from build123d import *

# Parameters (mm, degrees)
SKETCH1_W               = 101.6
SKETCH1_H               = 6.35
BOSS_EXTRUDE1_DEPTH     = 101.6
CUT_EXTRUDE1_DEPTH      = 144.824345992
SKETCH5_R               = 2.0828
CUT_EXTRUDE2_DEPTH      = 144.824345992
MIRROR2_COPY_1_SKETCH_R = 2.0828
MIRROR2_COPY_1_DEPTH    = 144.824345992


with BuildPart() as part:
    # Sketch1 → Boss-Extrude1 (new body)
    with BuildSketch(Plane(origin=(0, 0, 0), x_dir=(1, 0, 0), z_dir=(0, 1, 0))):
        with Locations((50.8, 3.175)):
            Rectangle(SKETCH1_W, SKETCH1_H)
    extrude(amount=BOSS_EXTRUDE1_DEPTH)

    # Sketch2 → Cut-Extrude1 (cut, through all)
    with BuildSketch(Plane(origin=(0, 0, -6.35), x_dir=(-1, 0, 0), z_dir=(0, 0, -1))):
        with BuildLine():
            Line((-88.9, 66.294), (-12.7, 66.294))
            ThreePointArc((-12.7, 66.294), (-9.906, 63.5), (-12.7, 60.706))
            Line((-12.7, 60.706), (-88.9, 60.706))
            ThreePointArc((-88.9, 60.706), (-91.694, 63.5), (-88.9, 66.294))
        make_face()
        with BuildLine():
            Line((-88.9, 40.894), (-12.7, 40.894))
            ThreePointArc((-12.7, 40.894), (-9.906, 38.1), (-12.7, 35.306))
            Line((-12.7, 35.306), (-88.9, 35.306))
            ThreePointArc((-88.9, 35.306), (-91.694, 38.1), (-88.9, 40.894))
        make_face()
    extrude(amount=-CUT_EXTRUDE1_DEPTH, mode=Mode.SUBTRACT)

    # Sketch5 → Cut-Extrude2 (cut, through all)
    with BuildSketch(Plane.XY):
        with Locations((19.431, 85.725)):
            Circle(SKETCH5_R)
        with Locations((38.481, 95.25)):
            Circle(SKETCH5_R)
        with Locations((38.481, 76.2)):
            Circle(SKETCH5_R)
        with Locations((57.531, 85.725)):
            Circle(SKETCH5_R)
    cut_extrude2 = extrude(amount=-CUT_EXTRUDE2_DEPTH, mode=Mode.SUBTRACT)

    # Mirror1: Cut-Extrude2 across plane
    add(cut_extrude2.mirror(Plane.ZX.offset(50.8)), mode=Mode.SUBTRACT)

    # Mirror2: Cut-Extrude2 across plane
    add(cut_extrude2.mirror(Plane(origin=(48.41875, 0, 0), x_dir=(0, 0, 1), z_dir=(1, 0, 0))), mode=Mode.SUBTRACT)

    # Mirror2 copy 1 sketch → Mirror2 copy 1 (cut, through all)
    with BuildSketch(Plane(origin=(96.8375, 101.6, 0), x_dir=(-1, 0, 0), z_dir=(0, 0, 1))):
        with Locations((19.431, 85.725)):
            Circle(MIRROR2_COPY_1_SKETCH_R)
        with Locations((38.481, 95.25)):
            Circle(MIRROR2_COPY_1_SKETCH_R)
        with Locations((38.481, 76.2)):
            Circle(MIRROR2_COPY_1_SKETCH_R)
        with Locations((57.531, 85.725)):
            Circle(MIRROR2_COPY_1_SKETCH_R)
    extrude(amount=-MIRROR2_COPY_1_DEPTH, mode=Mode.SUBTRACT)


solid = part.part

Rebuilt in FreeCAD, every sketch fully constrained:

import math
import FreeCAD as App
import Part
import Sketcher
Q = App.Units.Quantity

doc = App.newDocument("Part")
body = doc.addObject("PartDesign::Body", "Body")

sketch1 = body.newObject("Sketcher::SketchObject", "Sketch")
sketch1.AttachmentSupport = (doc.getObject("XZ_Plane"), [""])
sketch1.MapMode = "FlatFace"
sketch1.addGeometry([
    Part.LineSegment(App.Vector(0, -6.35, 0), App.Vector(0, 0, 0)),
    Part.LineSegment(App.Vector(0, 0, 0), App.Vector(101.6, 0, 0)),
    Part.LineSegment(App.Vector(101.6, 0, 0), App.Vector(101.6, -6.35, 0)),
    Part.LineSegment(App.Vector(101.6, -6.35, 0), App.Vector(0, -6.35, 0)),
], False)
sketch1.addConstraint([
    Sketcher.Constraint("Coincident", 0, 2, 1, 1),
    Sketcher.Constraint("Coincident", 1, 2, 2, 1),
    Sketcher.Constraint("Coincident", 2, 2, 3, 1),
    Sketcher.Constraint("Coincident", 3, 2, 0, 1),
    Sketcher.Constraint("Vertical", 0),
    Sketcher.Constraint("Horizontal", 1),
    Sketcher.Constraint("Vertical", 2),
    Sketcher.Constraint("Horizontal", 3),
    Sketcher.Constraint("Coincident", 0, 2, -1, 1),
    Sketcher.Constraint("DistanceX", 1, 1, 1, 2, Q("4 in")),
    Sketcher.Constraint("DistanceY", 0, 1, 0, 2, Q("0.25 in")),
])
pad1 = body.newObject("PartDesign::Pad", "Pad")
pad1.Profile = sketch1
pad1.Length = Q("4 in")
pad1.Reversed = True

sketch2 = body.newObject("Sketcher::SketchObject", "Sketch001")
sketch2.AttachmentSupport = (doc.getObject("XY_Plane"), [""])
sketch2.MapMode = "FlatFace"
sketch2.AttachmentOffset = App.Placement(App.Vector(0, 0, -0.25 * 25.4), App.Rotation())
sketch2.addGeometry([
    Part.LineSegment(App.Vector(12.7, 66.294, 0), App.Vector(88.9, 66.294, 0)),
    Part.ArcOfCircle(Part.Circle(App.Vector(88.9, 63.5, 0), App.Vector(0, 0, 1), 2.794), math.radians(-90), math.radians(90)),
    Part.LineSegment(App.Vector(88.9, 60.706, 0), App.Vector(12.7, 60.706, 0)),
    Part.ArcOfCircle(Part.Circle(App.Vector(12.7, 63.5, 0), App.Vector(0, 0, 1), 2.794), math.radians(90), math.radians(270)),
    Part.LineSegment(App.Vector(12.7, 40.894, 0), App.Vector(88.9, 40.894, 0)),
    Part.ArcOfCircle(Part.Circle(App.Vector(88.9, 38.1, 0), App.Vector(0, 0, 1), 2.794), math.radians(-90), math.radians(90)),
    Part.LineSegment(App.Vector(88.9, 35.306, 0), App.Vector(12.7, 35.306, 0)),
    Part.ArcOfCircle(Part.Circle(App.Vector(12.7, 38.1, 0), App.Vector(0, 0, 1), 2.794), math.radians(90), math.radians(270)),
], False)
sketch2.addConstraint([
    Sketcher.Constraint("Tangent", 0, 2, 1, 2),
    Sketcher.Constraint("Tangent", 1, 1, 2, 1),
    Sketcher.Constraint("Tangent", 2, 2, 3, 2),
    Sketcher.Constraint("Tangent", 3, 1, 0, 1),
    Sketcher.Constraint("Tangent", 4, 2, 5, 2),
    Sketcher.Constraint("Tangent", 5, 1, 6, 1),
    Sketcher.Constraint("Tangent", 6, 2, 7, 2),
    Sketcher.Constraint("Tangent", 7, 1, 4, 1),
    Sketcher.Constraint("Horizontal", 0),
    Sketcher.Constraint("Horizontal", 2),
    Sketcher.Constraint("Horizontal", 4),
    Sketcher.Constraint("Horizontal", 6),
    Sketcher.Constraint("Equal", 3, 5),
    Sketcher.Constraint("Vertical", 1, 3, 5, 3),
    Sketcher.Constraint("Vertical", 3, 3, 7, 3),
    Sketcher.Constraint("DistanceX", 0, 1, 0, 2, Q("3 in")),
    Sketcher.Constraint("Radius", 1, Q("0.11 in")),
    Sketcher.Constraint("DistanceY", 5, 3, 1, 3, Q("1 in")),
    Sketcher.Constraint("DistanceX", -1, 1, 1, 3, Q("3.5 in")),
    Sketcher.Constraint("DistanceY", -1, 1, 1, 3, Q("2.5 in")),
])
pocket1 = body.newObject("PartDesign::Pocket", "Pocket")
pocket1.Profile = sketch2
pocket1.Type = "ThroughAll"
pocket1.Reversed = True

sketch3 = body.newObject("Sketcher::SketchObject", "Sketch002")
sketch3.AttachmentSupport = (doc.getObject("XY_Plane"), [""])
sketch3.MapMode = "FlatFace"
sketch3.addGeometry([
    Part.Circle(App.Vector(19.431, 85.725, 0), App.Vector(0, 0, 1), 2.0828),
    Part.Circle(App.Vector(38.481, 95.25, 0), App.Vector(0, 0, 1), 2.0828),
    Part.Circle(App.Vector(38.481, 76.2, 0), App.Vector(0, 0, 1), 2.0828),
    Part.Circle(App.Vector(57.531, 85.725, 0), App.Vector(0, 0, 1), 2.0828),
], False)
sketch3.addConstraint([
    Sketcher.Constraint("Equal", 0, 1),
    Sketcher.Constraint("Equal", 1, 2),
    Sketcher.Constraint("Equal", 2, 3),
    Sketcher.Constraint("Horizontal", 0, 3, 3, 3),
    Sketcher.Constraint("Vertical", 1, 3, 2, 3),
    Sketcher.Constraint("Diameter", 0, Q("0.164 in")),
    Sketcher.Constraint("DistanceY", -1, 1, 2, 3, Q("3 in")),
    Sketcher.Constraint("DistanceX", 0, 3, 3, 3, Q("1.5 in")),
    Sketcher.Constraint("DistanceY", -1, 1, 1, 3, Q("3.75 in")),
    Sketcher.Constraint("DistanceX", 0, 3, 1, 3, Q("0.75 in")),
    Sketcher.Constraint("DistanceX", -1, 1, 0, 3, Q("0.765 in")),
    Sketcher.Constraint("DistanceY", -1, 1, 0, 3, Q("3.375 in")),
])
pocket2 = body.newObject("PartDesign::Pocket", "Pocket001")
pocket2.Profile = sketch3
pocket2.Type = "ThroughAll"
doc.recompute()

datumplane = body.newObject("PartDesign::Plane", "DatumPlane")
datumplane.AttachmentSupport = (doc.getObject("XZ_Plane"), [""])
datumplane.MapMode = "FlatFace"
datumplane.AttachmentOffset = App.Placement(App.Vector(0, 0, -2 * 25.4), App.Rotation())
mirrored = body.newObject("PartDesign::Mirrored", "Mirrored")
mirrored.Originals = [pocket2]
mirrored.MirrorPlane = (datumplane, [""])
body.Tip = mirrored
doc.recompute()

datumplane2 = body.newObject("PartDesign::Plane", "DatumPlane001")
datumplane2.AttachmentSupport = (doc.getObject("YZ_Plane"), [""])
datumplane2.MapMode = "FlatFace"
datumplane2.AttachmentOffset = App.Placement(App.Vector(0, 0, 1.90625 * 25.4), App.Rotation())
mirrored2 = body.newObject("PartDesign::Mirrored", "Mirrored001")
mirrored2.Originals = [pocket2]
mirrored2.MirrorPlane = (datumplane2, [""])
body.Tip = mirrored2

sketch4 = body.newObject("Sketcher::SketchObject", "Sketch003")
sketch4.AttachmentSupport = (doc.getObject("XY_Plane"), [""])
sketch4.MapMode = "FlatFace"
sketch4.addGeometry([
    Part.Circle(App.Vector(77.4065, 15.875, 0), App.Vector(0, 0, 1), 2.0828),
    Part.Circle(App.Vector(58.3565, 6.35, 0), App.Vector(0, 0, 1), 2.0828),
    Part.Circle(App.Vector(58.3565, 25.4, 0), App.Vector(0, 0, 1), 2.0828),
    Part.Circle(App.Vector(39.3065, 15.875, 0), App.Vector(0, 0, 1), 2.0828),
], False)
sketch4.addConstraint([
    Sketcher.Constraint("Equal", 0, 1),
    Sketcher.Constraint("Equal", 1, 2),
    Sketcher.Constraint("Equal", 2, 3),
    Sketcher.Constraint("Horizontal", 0, 3, 3, 3),
    Sketcher.Constraint("Vertical", 1, 3, 2, 3),
    Sketcher.Constraint("Diameter", 0, Q("0.164 in")),
    Sketcher.Constraint("DistanceY", -1, 1, 2, 3, Q("1 in")),
    Sketcher.Constraint("DistanceX", 3, 3, 0, 3, Q("1.5 in")),
    Sketcher.Constraint("DistanceY", -1, 1, 1, 3, Q("0.25 in")),
    Sketcher.Constraint("DistanceX", 1, 3, 0, 3, Q("0.75 in")),
    Sketcher.Constraint("DistanceY", -1, 1, 0, 3, Q("0.625 in")),
    Sketcher.Constraint("DistanceX", -1, 1, 0, 3, Q("3.0475 in")),
])
pocket3 = body.newObject("PartDesign::Pocket", "Pocket002")
pocket3.Profile = sketch4
pocket3.Type = "ThroughAll"

doc.recompute()
